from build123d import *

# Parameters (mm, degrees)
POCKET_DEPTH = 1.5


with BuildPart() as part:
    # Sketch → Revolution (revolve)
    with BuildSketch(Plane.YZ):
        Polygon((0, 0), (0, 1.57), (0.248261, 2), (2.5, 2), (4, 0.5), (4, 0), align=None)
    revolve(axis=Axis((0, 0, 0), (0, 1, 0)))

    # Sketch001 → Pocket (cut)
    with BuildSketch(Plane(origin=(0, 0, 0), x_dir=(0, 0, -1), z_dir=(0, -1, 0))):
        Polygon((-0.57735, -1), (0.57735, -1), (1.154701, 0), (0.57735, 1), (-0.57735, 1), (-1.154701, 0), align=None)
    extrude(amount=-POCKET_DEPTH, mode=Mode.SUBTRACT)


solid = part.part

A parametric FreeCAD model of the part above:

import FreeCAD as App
import Part
import Sketcher
from FreeCAD import Vector
Q = App.Units.Quantity


def add_polygon(sketch, points):
    """Adds a closed chain of lines whose ends are joined by coincident constraints."""
    first, n = sketch.GeometryCount, len(points)
    for a, b in zip(points, points[1:] + points[:1]):
        sketch.addGeometry(Part.LineSegment(App.Vector(*a, 0), App.Vector(*b, 0)), False)
    for i in range(n):
        sketch.addConstraint(Sketcher.Constraint("Coincident", first + i, 2, first + (i + 1) % n, 1))

doc = App.newDocument("Part")
body = doc.addObject("PartDesign::Body", "Body")

# Sketch on YZ plane
sketch1 = doc.addObject("Sketcher::SketchObject", "Sketch")
body.addObject(sketch1)
sketch1.AttachmentSupport = (doc.YZ_Plane, [""])
sketch1.MapMode = "FlatFace"
add_polygon(sketch1, [(0, 1.57), (0, 0), (4, 0), (4, 0.5), (2.5, 2), (0.25, 2)])  # lines 0-5
sketch1.addConstraint([
    Sketcher.Constraint("Vertical", 0),
    Sketcher.Constraint("Horizontal", 1),
    Sketcher.Constraint("Vertical", 2),
    Sketcher.Constraint("Horizontal", 4),
    Sketcher.Constraint("Coincident", 0, 2, -1, 1),
    Sketcher.Constraint("DistanceX", 1, 1, 1, 2, 4.0),
    Sketcher.Constraint("Angle", 3, Q("135 deg")),
    Sketcher.Constraint("DistanceY", 2, 1, 2, 2, 0.5),
    Sketcher.Constraint("DistanceY", -1, 1, 3, 2, 2.0),
    Sketcher.Constraint("DistanceY", 0, 2, 0, 1, 1.57),
    Sketcher.Constraint("DistanceX", 4, 2, 4, 1, 2.251739),
])
revolution = doc.addObject("PartDesign::Revolution", "Revolution")
body.addObject(revolution)
revolution.Profile = sketch1
revolution.ReferenceAxis = (sketch1, ["H_Axis"])
revolution.Angle = 360

# Sketch on XZ plane
sketch2 = doc.addObject("Sketcher::SketchObject", "Sketch001")
body.addObject(sketch2)
sketch2.AttachmentSupport = (doc.XZ_Plane, [""])
sketch2.MapMode = "FlatFace"
add_polygon(sketch2, [(-1, 0.6), (-1, -0.6), (0, -1.2), (1, -0.6), (1, 0.6), (0, 1.2)])  # lines 0-5
sketch2.addConstraint([
    Sketcher.Constraint("Vertical", 0),
    Sketcher.Constraint("Vertical", 3),
    Sketcher.Constraint("Symmetric", 0, 2, 3, 2, -1, 1),
    Sketcher.Constraint("Symmetric", 1, 2, 4, 2, -1, 1),
    Sketcher.Constraint("PointOnObject", 1, 2, -2),
    Sketcher.Constraint("Parallel", 2, 5),
    Sketcher.Constraint("Horizontal", 0, 2, 2, 2),
    Sketcher.Constraint("DistanceX", 0, 2, -1, 1, 1.0),
    Sketcher.Constraint("DistanceY", 0, 2, 0, 1, 1.1547),
    Sketcher.Constraint("Distance", 1, 1.154701),
])
pocket1 = doc.addObject("PartDesign::Pocket", "Pocket")
body.addObject(pocket1)
pocket1.Profile = sketch2
pocket1.Length = 1.5

doc.recompute()
